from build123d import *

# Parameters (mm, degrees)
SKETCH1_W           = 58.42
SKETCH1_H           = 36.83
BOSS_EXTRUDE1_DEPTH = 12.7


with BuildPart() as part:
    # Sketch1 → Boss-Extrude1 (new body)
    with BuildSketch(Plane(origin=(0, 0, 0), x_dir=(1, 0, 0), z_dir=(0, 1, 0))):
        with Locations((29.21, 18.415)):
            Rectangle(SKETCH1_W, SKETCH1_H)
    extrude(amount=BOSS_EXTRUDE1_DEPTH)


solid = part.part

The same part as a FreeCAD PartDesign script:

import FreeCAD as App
import Part
import Sketcher
from FreeCAD import Vector
Q = App.Units.Quantity

doc = App.newDocument("Part")
body = doc.addObject("PartDesign::Body", "Body")

sketch1 = body.newObject("Sketcher::SketchObject", "Sketch")
sketch1.AttachmentSupport = (doc.getObject("XZ_Plane"), [""])
sketch1.MapMode = "FlatFace"
sketch1.addGeometry([
    Part.LineSegment(Vector(0, -37, 0), Vector(0, 0, 0)),
    Part.LineSegment(Vector(0, 0, 0), Vector(58, 0, 0)),
    Part.LineSegment(Vector(58, 0, 0), Vector(58, -37, 0)),
    Part.LineSegment(Vector(58, -37, 0), Vector(0, -37, 0)),
], False)
sketch1.addConstraint([
    Sketcher.Constraint("Coincident", 0, 2, 1, 1),
    Sketcher.Constraint("Coincident", 1, 2, 2, 1),
    Sketcher.Constraint("Coincident", 2, 2, 3, 1),
    Sketcher.Constraint("Coincident", 3, 2, 0, 1),
    Sketcher.Constraint("Vertical", 0),
    Sketcher.Constraint("Horizontal", 1),
    Sketcher.Constraint("Vertical", 2),
    Sketcher.Constraint("Horizontal", 3),
    Sketcher.Constraint("Coincident", 0, 2, -1, 1),
    Sketcher.Constraint("DistanceX", 1, 1, 1, 2, Q("2.3 in")),
    Sketcher.Constraint("DistanceY", 0, 1, 0, 2, Q("1.45 in")),
])
pad1 = body.newObject("PartDesign::Pad", "Pad")
pad1.Profile = sketch1
pad1.Length = Q("0.5 in")
pad1.Reversed = True

doc.recompute()
